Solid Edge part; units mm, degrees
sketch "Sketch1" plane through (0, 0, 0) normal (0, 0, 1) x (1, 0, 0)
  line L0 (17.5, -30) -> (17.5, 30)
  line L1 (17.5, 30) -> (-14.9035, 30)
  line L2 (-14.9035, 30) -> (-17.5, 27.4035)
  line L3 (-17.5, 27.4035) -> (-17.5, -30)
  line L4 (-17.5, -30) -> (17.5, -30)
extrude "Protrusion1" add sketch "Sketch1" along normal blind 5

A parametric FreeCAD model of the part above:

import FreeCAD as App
import Part
import Sketcher
Q = App.Units.Quantity


def add_polygon(sketch, points):
    """Adds a closed chain of lines whose ends are joined by coincident constraints."""
    first, n = sketch.GeometryCount, len(points)
    for a, b in zip(points, points[1:] + points[:1]):
        sketch.addGeometry(Part.LineSegment(App.Vector(*a, 0), App.Vector(*b, 0)), False)
    for i in range(n):
        sketch.addConstraint(Sketcher.Constraint("Coincident", first + i, 2, first + (i + 1) % n, 1))

doc = App.newDocument("Part")
body = doc.addObject("PartDesign::Body", "Body")

# Sketch on XY plane
sketch1 = doc.addObject("Sketcher::SketchObject", "Sketch")
body.addObject(sketch1)
sketch1.AttachmentSupport = (doc.XY_Plane, [""])
sketch1.MapMode = "FlatFace"
add_polygon(sketch1, [(-17.5, -30), (17.5, -30), (17.5, 30), (-14.9, 30), (-17.5, 27.4)])  # lines 0-4
sketch1.addConstraint([
    Sketcher.Constraint("Horizontal", 0),
    Sketcher.Constraint("Vertical", 1),
    Sketcher.Constraint("Horizontal", 2),
    Sketcher.Constraint("Vertical", 4),
    Sketcher.Constraint("Symmetric", 1, 2, 4, 2, -1, 1),
    Sketcher.Constraint("DistanceX", 0, 1, 0, 2, 35.0),
    Sketcher.Constraint("DistanceY", 1, 1, 1, 2, 60.0),
    Sketcher.Constraint("Angle", 3, Q("-135 deg")),
    Sketcher.Constraint("Distance", 3, 3.672),
])
pad1 = doc.addObject("PartDesign::Pad", "Pad")
body.addObject(pad1)
pad1.Profile = sketch1
pad1.Length = 5

doc.recompute()
